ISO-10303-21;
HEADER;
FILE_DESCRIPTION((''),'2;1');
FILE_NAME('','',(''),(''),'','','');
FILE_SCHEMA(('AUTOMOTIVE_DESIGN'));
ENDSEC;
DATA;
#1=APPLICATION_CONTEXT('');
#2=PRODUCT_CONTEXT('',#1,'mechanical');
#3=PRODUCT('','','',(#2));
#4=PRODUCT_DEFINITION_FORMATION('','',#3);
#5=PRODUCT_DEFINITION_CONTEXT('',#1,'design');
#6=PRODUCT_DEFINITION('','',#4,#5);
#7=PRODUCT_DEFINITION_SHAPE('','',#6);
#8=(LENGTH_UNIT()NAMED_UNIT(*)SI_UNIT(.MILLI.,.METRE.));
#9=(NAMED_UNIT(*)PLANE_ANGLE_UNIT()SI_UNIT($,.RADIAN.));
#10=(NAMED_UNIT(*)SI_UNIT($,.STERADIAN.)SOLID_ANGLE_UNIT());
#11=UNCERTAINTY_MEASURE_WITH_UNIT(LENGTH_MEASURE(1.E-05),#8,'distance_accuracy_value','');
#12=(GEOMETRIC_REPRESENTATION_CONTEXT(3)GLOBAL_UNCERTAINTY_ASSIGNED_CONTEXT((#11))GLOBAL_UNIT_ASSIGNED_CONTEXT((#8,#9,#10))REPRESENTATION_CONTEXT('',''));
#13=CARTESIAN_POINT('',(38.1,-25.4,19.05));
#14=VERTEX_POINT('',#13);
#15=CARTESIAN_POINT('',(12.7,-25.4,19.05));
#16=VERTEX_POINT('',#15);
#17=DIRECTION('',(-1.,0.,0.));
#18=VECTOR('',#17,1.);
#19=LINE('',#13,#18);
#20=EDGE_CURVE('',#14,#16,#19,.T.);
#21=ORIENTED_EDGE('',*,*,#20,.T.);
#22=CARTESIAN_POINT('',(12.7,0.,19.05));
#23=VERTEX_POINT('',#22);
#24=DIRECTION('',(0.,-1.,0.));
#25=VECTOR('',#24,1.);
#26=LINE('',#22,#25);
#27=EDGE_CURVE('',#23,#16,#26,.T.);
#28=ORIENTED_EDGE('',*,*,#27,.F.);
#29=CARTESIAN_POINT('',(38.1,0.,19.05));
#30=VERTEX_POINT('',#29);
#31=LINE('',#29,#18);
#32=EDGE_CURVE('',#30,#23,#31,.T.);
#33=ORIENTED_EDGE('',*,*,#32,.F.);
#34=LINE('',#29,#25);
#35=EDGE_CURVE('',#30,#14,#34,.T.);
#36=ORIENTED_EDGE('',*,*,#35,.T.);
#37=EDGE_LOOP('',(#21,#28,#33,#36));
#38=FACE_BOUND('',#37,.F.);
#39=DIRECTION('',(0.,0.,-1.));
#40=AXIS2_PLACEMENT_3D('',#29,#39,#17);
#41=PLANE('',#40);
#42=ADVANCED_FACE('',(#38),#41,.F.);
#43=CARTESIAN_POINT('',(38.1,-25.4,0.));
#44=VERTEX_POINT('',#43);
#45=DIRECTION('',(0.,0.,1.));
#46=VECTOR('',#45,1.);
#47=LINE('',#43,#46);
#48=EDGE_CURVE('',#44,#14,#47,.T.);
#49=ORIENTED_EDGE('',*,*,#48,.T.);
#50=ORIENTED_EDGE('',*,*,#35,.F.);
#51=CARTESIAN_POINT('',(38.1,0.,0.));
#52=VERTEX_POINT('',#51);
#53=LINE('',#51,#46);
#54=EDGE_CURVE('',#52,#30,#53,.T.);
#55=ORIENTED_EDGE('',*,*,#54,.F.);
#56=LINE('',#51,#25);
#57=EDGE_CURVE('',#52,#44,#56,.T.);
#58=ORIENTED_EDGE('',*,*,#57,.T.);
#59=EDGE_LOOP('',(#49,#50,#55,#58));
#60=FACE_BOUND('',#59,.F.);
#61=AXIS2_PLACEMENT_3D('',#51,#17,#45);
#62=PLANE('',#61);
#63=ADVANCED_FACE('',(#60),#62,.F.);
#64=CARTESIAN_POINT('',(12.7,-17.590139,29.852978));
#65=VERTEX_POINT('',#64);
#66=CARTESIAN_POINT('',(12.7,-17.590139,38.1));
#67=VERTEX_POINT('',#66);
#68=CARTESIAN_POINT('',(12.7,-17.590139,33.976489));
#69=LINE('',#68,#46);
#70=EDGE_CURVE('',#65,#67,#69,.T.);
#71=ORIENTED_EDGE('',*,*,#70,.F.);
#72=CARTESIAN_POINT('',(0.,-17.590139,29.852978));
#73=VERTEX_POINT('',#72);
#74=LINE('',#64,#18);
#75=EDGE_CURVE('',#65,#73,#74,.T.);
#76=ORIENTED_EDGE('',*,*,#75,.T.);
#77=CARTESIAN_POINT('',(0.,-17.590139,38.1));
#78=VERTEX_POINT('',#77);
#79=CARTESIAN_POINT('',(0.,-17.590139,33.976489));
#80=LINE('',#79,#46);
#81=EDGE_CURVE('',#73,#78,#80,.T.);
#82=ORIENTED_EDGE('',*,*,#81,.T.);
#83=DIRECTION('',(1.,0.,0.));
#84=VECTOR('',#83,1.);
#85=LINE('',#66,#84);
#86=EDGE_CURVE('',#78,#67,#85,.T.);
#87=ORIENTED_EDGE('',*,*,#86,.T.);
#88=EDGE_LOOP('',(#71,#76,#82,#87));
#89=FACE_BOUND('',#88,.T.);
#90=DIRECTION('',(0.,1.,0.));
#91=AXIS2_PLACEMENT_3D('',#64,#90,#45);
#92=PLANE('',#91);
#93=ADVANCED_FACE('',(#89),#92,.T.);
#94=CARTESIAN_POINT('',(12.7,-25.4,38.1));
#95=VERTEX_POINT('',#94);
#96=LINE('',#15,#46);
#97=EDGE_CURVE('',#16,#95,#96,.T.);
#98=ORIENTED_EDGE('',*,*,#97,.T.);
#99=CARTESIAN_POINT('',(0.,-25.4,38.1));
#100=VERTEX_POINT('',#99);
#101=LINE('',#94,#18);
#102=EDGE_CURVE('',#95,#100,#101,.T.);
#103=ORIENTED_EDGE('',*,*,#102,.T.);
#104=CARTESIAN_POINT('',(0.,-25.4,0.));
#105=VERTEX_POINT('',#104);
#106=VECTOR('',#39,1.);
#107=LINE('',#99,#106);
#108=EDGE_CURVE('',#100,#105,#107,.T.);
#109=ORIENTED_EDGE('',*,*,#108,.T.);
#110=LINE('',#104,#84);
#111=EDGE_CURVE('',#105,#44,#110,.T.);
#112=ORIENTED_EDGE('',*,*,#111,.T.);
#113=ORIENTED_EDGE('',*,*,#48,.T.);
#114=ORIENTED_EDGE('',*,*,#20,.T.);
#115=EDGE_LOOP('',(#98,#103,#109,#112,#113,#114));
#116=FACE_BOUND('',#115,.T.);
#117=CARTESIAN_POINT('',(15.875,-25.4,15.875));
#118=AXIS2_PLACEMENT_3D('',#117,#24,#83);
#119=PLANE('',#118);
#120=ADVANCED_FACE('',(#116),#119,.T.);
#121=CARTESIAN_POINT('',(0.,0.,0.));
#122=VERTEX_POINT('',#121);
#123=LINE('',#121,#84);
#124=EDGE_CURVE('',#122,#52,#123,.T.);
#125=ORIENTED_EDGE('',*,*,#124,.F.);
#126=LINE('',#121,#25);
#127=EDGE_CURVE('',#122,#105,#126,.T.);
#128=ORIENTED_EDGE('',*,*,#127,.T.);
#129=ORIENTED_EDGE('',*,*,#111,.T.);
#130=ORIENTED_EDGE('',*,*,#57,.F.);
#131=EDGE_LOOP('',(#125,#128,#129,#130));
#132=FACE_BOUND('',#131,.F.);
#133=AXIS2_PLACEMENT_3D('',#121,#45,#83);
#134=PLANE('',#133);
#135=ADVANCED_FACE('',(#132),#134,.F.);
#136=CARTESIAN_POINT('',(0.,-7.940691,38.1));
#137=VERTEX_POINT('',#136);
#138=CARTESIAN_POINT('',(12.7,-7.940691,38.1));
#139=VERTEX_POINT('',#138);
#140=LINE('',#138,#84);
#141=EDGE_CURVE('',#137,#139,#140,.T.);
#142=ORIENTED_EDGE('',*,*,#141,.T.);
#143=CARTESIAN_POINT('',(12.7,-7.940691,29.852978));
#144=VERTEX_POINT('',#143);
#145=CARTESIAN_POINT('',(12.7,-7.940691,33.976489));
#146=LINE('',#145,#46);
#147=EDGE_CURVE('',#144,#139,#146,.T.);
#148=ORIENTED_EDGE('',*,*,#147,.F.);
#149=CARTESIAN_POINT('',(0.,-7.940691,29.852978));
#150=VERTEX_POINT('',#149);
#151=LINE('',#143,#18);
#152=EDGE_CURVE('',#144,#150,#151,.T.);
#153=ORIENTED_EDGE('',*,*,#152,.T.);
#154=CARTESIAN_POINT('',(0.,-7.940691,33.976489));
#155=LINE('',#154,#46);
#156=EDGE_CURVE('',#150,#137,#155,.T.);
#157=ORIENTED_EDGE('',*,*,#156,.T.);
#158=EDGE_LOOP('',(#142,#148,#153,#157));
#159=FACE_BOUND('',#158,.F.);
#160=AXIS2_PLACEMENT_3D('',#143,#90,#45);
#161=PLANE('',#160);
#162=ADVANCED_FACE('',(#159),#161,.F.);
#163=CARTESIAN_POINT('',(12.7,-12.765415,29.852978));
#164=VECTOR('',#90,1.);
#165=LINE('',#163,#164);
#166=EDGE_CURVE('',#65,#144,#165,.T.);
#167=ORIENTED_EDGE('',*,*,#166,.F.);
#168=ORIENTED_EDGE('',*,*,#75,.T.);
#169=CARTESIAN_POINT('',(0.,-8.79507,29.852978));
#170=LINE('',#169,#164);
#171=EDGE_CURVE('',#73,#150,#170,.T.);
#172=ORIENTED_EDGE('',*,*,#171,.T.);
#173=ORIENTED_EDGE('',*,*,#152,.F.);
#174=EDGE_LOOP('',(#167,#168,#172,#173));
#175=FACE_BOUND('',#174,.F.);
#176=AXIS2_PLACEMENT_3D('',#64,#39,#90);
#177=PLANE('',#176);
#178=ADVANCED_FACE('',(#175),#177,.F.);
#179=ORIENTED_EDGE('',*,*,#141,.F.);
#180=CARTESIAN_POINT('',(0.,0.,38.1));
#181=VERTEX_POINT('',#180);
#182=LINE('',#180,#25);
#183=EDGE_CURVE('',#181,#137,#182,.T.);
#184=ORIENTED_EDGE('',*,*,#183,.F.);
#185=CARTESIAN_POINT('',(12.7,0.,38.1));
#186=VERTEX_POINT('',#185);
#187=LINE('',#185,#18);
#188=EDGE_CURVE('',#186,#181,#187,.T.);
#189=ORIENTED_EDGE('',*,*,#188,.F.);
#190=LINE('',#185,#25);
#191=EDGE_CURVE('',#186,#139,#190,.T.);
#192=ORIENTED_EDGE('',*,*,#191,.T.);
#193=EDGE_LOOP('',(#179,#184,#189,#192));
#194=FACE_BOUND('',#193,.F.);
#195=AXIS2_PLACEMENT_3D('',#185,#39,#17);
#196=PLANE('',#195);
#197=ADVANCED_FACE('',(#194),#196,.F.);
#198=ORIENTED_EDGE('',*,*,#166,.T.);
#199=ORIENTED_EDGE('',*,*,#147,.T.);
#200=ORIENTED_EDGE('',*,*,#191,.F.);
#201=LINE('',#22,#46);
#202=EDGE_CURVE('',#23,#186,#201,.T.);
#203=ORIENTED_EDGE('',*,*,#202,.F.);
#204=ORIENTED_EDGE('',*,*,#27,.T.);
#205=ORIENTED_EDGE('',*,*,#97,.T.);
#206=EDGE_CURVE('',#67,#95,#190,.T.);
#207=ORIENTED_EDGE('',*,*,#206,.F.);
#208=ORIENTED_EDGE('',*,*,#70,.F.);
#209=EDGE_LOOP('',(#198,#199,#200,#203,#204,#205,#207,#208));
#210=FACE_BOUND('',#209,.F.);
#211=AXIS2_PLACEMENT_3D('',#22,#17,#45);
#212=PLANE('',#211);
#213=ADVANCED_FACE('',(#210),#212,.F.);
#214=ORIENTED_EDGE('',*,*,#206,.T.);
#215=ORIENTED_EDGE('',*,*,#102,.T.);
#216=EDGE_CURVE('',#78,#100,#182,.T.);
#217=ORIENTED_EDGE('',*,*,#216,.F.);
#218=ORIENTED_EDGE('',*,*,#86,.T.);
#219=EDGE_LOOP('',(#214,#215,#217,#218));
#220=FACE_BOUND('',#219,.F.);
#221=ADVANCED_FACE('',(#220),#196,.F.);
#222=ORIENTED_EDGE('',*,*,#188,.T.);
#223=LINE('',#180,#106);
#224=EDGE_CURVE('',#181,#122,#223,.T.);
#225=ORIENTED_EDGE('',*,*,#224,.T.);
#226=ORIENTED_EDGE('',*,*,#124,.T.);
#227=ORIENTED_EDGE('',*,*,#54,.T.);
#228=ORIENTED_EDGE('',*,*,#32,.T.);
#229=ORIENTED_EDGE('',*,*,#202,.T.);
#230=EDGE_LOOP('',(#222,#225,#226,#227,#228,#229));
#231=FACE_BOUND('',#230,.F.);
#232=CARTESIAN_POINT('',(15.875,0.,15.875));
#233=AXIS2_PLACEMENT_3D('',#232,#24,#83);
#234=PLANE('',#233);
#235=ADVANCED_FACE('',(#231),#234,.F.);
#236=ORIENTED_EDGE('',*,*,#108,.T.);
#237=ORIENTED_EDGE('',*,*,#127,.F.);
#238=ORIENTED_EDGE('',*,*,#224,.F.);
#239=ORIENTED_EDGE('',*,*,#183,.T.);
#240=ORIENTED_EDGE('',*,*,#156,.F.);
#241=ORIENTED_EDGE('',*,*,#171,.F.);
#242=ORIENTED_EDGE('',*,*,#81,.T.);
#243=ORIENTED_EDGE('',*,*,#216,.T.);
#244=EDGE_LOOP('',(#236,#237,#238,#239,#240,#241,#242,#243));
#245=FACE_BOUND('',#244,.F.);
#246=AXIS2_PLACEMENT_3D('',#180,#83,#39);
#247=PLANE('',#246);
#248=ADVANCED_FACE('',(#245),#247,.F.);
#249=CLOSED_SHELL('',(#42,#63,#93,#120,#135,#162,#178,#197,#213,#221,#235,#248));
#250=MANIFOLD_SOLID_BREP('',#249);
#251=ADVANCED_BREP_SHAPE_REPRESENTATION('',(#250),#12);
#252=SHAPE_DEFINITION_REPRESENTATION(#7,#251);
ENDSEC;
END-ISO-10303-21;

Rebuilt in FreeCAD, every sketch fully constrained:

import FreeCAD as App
import Part
import Sketcher

V = App.Vector
Q = App.Units.Quantity


def add_polygon(sketch, points):
    """Adds a closed chain of lines whose ends are joined by coincident constraints."""
    first, n = sketch.GeometryCount, len(points)
    for a, b in zip(points, points[1:] + points[:1]):
        sketch.addGeometry(Part.LineSegment(App.Vector(*a, 0), App.Vector(*b, 0)), False)
    for i in range(n):
        sketch.addConstraint(Sketcher.Constraint("Coincident", first + i, 2, first + (i + 1) % n, 1))

doc = App.newDocument("Part")
params = doc.addObject("Spreadsheet::Sheet", "Params")
for row, (alias, value) in enumerate([
    ("sketch1_width", "1 in"),
    ("sketch1_width2", "1.5 in"),
    ("pad1_length", "1 in"),
    ("pocket1_length", "1 in"),
], start=1):
    params.set(f"A{row}", alias)
    params.set(f"B{row}", "=" + value)
    params.setAlias(f"B{row}", alias)

body = doc.addObject("PartDesign::Body", "Body")

# Sketch on XZ plane
sketch1 = body.newObject("Sketcher::SketchObject", "Sketch")
sketch1.AttachmentSupport = (doc.getObject("XZ_Plane"), [""])
sketch1.MapMode = "FlatFace"
add_polygon(sketch1, [(0, 38.1), (0, 0), (38.1, 0), (38.1, 19.05), (12.7, 19.05), (12.7, 38.1)])  # lines 0-5
sketch1.addConstraint(Sketcher.Constraint("Vertical", 0))
sketch1.addConstraint(Sketcher.Constraint("Horizontal", 1))
sketch1.addConstraint(Sketcher.Constraint("Vertical", 2))
sketch1.addConstraint(Sketcher.Constraint("Horizontal", 3))
sketch1.addConstraint(Sketcher.Constraint("Vertical", 4))
sketch1.addConstraint(Sketcher.Constraint("Horizontal", 5))
sketch1.addConstraint(Sketcher.Constraint("Coincident", 0, 2, -1, 1))
sketch1.addConstraint(Sketcher.Constraint("Equal", 1, 0))
sketch1.addConstraint(Sketcher.Constraint("Equal", 2, 4))
sketch1.addConstraint(Sketcher.Constraint("DistanceX", 3, 2, 3, 1, Q("1 in")))
sketch1.addConstraint(Sketcher.Constraint("DistanceX", 1, 1, 1, 2, Q("1.5 in")))
sketch1.setExpression("Constraints[15]", "Params.sketch1_width")
sketch1.setExpression("Constraints[16]", "Params.sketch1_width2")
pad1 = body.newObject("PartDesign::Pad", "Pad")
pad1.Profile = sketch1
pad1.setExpression("Length", "Params.pad1_length")

# Sketch on YZ plane
sketch2 = body.newObject("Sketcher::SketchObject", "Sketch001")
sketch2.AttachmentSupport = (doc.getObject("YZ_Plane"), [""])
sketch2.MapMode = "FlatFace"
sketch2.AttachmentOffset = App.Placement(V(0, 0, 0.5 * 25.4), App.Rotation())
add_polygon(sketch2, [(-17.590139, 38.100001), (-17.590139, 29.852978), (-7.940691, 29.852978), (-7.940691, 38.100001)])  # lines 0-3
sketch2.addConstraint(Sketcher.Constraint("Vertical", 0))
sketch2.addConstraint(Sketcher.Constraint("Horizontal", 1))
sketch2.addConstraint(Sketcher.Constraint("Vertical", 2))
sketch2.addConstraint(Sketcher.Constraint("Horizontal", 3))
sketch2.addConstraint(Sketcher.Constraint("DistanceY", -1, 1, 2, 2, Q("1.5 in")))
sketch2.addConstraint(Sketcher.Constraint("DistanceX", 1, 1, 1, 2, Q("9.649448 mm")))
sketch2.addConstraint(Sketcher.Constraint("DistanceY", 0, 2, 0, 1, Q("8.247023 mm")))
sketch2.addConstraint(Sketcher.Constraint("DistanceX", 0, 2, -1, 1, Q("17.590139 mm")))
pocket1 = body.newObject("PartDesign::Pocket", "Pocket")
pocket1.Profile = sketch2
pocket1.setExpression("Length", "Params.pocket1_length")

doc.recompute()
